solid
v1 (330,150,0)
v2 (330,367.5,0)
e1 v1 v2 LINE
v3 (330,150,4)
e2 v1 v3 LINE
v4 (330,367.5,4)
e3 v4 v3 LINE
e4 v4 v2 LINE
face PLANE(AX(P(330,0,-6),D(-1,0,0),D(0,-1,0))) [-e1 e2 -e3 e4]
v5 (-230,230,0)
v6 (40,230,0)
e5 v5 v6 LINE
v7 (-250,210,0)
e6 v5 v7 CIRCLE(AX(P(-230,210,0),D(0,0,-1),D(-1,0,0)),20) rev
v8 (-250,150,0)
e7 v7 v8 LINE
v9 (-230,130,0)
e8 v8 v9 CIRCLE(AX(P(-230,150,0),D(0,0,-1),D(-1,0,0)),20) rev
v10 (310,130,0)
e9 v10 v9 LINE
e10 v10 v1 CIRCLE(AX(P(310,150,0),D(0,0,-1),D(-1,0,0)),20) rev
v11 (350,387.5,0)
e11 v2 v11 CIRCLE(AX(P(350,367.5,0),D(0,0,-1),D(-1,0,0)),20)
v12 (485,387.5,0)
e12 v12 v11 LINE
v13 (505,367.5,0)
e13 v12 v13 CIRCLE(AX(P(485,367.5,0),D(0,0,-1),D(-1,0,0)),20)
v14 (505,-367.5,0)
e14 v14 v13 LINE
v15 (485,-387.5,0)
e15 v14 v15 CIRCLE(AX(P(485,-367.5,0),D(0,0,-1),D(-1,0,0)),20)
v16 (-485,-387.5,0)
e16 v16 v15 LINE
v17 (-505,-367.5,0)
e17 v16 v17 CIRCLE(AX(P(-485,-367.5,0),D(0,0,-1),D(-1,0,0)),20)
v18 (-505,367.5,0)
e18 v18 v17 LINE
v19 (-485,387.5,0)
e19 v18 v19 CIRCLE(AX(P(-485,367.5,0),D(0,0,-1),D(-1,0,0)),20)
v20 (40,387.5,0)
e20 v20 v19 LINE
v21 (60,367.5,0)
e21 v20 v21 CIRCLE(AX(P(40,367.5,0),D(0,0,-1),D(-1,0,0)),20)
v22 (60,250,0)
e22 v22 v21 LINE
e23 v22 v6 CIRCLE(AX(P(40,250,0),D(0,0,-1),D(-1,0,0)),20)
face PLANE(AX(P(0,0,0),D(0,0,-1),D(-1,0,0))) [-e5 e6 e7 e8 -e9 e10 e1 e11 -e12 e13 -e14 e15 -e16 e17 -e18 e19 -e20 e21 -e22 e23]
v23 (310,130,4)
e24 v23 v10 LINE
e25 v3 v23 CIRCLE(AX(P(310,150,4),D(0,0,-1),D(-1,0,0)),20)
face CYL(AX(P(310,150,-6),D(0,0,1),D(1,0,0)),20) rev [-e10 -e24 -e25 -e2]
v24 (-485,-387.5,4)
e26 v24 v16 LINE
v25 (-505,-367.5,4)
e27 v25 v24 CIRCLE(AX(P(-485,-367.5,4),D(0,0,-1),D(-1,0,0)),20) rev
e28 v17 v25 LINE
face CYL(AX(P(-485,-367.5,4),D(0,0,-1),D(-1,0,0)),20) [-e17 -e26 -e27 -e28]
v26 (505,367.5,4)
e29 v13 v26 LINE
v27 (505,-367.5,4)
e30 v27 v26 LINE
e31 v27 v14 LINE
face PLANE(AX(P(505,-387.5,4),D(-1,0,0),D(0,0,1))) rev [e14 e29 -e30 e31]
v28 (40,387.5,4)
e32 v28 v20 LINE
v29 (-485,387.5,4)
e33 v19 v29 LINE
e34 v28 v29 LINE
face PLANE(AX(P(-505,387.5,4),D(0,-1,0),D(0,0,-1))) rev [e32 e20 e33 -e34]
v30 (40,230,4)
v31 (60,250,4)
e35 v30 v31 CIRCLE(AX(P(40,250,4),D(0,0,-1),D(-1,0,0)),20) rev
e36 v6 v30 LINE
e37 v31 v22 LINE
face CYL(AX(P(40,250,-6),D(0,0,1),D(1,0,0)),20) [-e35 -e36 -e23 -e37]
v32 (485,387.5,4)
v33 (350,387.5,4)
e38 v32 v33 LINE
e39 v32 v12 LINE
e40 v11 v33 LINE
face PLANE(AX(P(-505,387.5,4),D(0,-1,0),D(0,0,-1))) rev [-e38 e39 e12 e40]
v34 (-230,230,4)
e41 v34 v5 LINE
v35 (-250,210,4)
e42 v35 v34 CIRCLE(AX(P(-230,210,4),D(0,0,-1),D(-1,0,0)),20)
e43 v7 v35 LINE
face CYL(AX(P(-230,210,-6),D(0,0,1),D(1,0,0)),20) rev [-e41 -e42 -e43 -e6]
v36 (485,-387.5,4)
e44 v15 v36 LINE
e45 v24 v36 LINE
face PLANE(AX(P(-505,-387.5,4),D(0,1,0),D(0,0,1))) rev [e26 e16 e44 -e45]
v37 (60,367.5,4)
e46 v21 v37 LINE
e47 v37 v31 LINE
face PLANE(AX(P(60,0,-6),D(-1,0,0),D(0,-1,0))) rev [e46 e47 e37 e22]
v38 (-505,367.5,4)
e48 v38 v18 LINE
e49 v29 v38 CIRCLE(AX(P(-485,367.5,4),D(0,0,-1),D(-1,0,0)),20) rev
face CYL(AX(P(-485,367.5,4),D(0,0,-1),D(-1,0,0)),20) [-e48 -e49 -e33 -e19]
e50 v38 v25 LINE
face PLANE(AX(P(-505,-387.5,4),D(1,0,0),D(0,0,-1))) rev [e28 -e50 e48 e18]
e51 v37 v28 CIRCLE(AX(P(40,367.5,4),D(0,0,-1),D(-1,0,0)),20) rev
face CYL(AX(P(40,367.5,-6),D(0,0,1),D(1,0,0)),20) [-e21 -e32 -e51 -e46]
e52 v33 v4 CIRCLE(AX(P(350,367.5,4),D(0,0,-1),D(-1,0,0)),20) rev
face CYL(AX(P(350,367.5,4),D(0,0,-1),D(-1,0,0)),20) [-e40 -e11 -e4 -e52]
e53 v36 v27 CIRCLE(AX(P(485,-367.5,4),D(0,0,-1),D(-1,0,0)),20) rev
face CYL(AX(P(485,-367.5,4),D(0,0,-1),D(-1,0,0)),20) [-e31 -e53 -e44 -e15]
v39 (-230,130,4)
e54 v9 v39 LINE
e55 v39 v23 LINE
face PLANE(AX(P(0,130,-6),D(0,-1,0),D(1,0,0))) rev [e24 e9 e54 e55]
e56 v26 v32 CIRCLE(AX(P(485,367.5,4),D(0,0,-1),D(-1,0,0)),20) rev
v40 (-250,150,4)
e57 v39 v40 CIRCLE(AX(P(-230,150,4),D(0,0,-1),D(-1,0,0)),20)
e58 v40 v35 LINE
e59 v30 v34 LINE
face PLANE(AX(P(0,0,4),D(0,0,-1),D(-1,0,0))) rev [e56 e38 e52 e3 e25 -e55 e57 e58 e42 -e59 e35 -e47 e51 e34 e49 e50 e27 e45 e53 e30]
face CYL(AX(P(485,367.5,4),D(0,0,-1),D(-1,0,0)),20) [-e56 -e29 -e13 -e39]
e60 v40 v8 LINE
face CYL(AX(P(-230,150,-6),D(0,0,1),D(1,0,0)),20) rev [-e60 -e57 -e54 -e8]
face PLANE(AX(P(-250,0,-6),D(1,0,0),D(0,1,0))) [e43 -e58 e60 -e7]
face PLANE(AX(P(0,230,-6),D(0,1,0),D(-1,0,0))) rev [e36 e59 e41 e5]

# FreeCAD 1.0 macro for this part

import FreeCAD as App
import Part
import Sketcher

V = App.Vector
Q = App.Units.Quantity


def edges_at(feature, points):
    """Names of the edges that pass closest to the given points."""
    edges = feature.Shape.Edges
    near = lambda p: min(range(len(edges)), key=lambda i: edges[i].distToShape(Part.Vertex(*p))[0])
    return sorted({f"Edge{near(p) + 1}" for p in points})


def add_polygon(sketch, points):
    """Adds a closed chain of lines whose ends are joined by coincident constraints."""
    first, n = sketch.GeometryCount, len(points)
    for a, b in zip(points, points[1:] + points[:1]):
        sketch.addGeometry(Part.LineSegment(App.Vector(*a, 0), App.Vector(*b, 0)), False)
    for i in range(n):
        sketch.addConstraint(Sketcher.Constraint("Coincident", first + i, 2, first + (i + 1) % n, 1))

doc = App.newDocument("Part")
body = doc.addObject("PartDesign::Body", "Body")

# Sketch on XY plane
sketch1 = body.newObject("Sketcher::SketchObject", "Sketch")
sketch1.AttachmentSupport = (doc.getObject("XY_Plane"), [""])
sketch1.MapMode = "FlatFace"
add_polygon(sketch1, [(-505, 388), (-505, -388), (505, -388), (505, 388)])  # lines 0-3
sketch1.addConstraint([
    Sketcher.Constraint("Vertical", 0),
    Sketcher.Constraint("Horizontal", 1),
    Sketcher.Constraint("Vertical", 2),
    Sketcher.Constraint("Horizontal", 3),
    Sketcher.Constraint("Symmetric", 0, 2, 2, 2, -1, 1),
    Sketcher.Constraint("DistanceX", 1, 1, 1, 2, Q("1010 mm")),
    Sketcher.Constraint("DistanceY", 0, 2, 0, 1, Q("775 mm")),
])
pad1 = body.newObject("PartDesign::Pad", "Pad")
pad1.Profile = sketch1
pad1.Length = 4
doc.recompute()

fillet = body.newObject("PartDesign::Fillet", "Fillet")
fillet.Base = (pad1, edges_at(pad1, [
    (505, -387.5, 2),
    (-505, -387.5, 2),
    (-505, 387.5, 2),
    (505, 387.5, 2),
]))
fillet.Radius = 20

# Sketch on XY plane
sketch2 = body.newObject("Sketcher::SketchObject", "Sketch001")
sketch2.AttachmentSupport = (doc.getObject("XY_Plane"), [""])
sketch2.MapMode = "FlatFace"
sketch2.AttachmentOffset = App.Placement(V(0, 0, 4), App.Rotation())
add_polygon(sketch2, [(330, 388), (60, 388), (60, 230), (-250, 230), (-250, 130), (330, 130)])  # lines 0-5
sketch2.addConstraint([
    Sketcher.Constraint("Horizontal", 0),
    Sketcher.Constraint("Vertical", 1),
    Sketcher.Constraint("Horizontal", 2),
    Sketcher.Constraint("Vertical", 3),
    Sketcher.Constraint("Horizontal", 4),
    Sketcher.Constraint("Vertical", 5),
    Sketcher.Constraint("DistanceX", 0, 2, 0, 1, Q("270 mm")),
    Sketcher.Constraint("DistanceX", 2, 2, 2, 1, Q("310 mm")),
    Sketcher.Constraint("DistanceY", 3, 2, 3, 1, Q("100 mm")),
    Sketcher.Constraint("DistanceY", 1, 2, 1, 1, Q("157.5 mm")),
    Sketcher.Constraint("DistanceX", -1, 1, 0, 2, Q("60 mm")),
    Sketcher.Constraint("DistanceY", -1, 1, 1, 2, Q("230 mm")),
])
pocket1 = body.newObject("PartDesign::Pocket", "Pocket")
pocket1.Profile = sketch2
pocket1.Length = 10
doc.recompute()

fillet2 = body.newObject("PartDesign::Fillet", "Fillet001")
fillet2.Base = (pocket1, edges_at(pocket1, [
    (60, 387.5, 2),
    (330, 387.5, 2),
    (330, 130, 2),
    (-250, 130, 2),
    (-250, 230, 2),
    (60, 230, 2),
]))
fillet2.Radius = 20

doc.recompute()
